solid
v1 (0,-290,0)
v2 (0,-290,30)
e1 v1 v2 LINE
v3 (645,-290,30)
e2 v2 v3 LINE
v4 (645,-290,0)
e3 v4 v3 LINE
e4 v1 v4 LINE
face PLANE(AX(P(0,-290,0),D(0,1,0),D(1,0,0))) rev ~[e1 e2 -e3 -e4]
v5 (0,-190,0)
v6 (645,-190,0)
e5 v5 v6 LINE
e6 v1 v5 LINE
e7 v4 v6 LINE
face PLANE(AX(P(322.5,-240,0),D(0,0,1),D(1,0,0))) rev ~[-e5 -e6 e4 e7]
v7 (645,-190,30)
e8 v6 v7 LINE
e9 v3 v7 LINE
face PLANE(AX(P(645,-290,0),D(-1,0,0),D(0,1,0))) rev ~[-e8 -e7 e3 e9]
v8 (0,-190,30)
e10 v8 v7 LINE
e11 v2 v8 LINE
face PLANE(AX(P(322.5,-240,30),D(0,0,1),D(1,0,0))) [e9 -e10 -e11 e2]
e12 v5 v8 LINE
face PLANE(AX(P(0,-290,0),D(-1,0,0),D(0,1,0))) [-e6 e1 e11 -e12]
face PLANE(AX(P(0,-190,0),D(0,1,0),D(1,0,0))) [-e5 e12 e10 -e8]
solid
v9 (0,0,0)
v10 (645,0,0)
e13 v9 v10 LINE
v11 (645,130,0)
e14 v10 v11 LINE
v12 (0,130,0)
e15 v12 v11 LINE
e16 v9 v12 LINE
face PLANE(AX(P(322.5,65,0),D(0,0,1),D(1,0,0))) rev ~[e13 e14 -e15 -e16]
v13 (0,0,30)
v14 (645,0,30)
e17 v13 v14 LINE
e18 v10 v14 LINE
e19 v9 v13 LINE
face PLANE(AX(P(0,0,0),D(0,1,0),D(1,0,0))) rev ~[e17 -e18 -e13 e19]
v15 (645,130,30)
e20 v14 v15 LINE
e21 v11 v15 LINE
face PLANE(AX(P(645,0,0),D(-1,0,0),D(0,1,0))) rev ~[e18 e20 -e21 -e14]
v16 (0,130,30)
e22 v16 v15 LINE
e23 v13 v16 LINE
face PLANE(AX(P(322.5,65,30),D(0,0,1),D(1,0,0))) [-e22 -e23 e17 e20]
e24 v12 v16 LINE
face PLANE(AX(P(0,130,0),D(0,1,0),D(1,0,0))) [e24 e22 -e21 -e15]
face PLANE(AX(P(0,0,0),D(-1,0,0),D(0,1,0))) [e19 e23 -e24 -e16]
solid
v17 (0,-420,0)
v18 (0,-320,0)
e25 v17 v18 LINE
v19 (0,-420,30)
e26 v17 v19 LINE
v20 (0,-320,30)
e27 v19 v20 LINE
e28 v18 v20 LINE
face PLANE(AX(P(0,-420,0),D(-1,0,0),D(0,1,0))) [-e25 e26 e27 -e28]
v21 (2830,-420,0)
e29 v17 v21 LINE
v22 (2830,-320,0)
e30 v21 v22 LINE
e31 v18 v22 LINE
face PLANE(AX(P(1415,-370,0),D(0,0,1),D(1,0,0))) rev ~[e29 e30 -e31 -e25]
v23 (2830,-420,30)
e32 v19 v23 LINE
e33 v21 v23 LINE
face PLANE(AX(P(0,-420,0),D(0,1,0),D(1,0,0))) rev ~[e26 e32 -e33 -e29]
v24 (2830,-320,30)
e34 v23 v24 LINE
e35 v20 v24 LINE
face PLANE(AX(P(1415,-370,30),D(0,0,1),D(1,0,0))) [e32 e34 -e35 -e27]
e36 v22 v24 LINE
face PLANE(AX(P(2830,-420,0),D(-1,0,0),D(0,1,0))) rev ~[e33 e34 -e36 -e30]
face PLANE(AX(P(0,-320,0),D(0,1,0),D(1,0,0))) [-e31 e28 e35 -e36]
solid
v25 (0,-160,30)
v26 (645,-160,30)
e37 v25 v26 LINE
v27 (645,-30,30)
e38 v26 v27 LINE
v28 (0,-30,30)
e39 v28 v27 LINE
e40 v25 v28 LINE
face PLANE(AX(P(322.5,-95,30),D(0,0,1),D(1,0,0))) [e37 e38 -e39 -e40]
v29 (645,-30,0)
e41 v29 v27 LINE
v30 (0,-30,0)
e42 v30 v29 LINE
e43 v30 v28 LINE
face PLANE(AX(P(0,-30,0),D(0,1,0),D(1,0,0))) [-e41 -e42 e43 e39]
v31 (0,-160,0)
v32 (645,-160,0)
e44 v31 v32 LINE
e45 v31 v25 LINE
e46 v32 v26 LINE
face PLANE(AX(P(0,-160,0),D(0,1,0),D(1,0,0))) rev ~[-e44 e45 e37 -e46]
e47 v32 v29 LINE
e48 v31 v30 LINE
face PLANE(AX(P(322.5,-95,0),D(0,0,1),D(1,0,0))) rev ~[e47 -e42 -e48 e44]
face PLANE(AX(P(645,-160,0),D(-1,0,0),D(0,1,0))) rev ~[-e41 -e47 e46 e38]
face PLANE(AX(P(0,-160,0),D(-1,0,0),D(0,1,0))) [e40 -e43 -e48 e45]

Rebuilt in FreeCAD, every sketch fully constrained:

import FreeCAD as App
import Part
import Sketcher
Q = App.Units.Quantity


def add_polygon(sketch, points):
    """Adds a closed chain of lines whose ends are joined by coincident constraints."""
    first, n = sketch.GeometryCount, len(points)
    for a, b in zip(points, points[1:] + points[:1]):
        sketch.addGeometry(Part.LineSegment(App.Vector(*a, 0), App.Vector(*b, 0)), False)
    for i in range(n):
        sketch.addConstraint(Sketcher.Constraint("Coincident", first + i, 2, first + (i + 1) % n, 1))

doc = App.newDocument("Part")
body = doc.addObject("PartDesign::Body", "Body")
body.AllowCompound = True

# Sketch on XY plane
sketch1 = body.newObject("Sketcher::SketchObject", "Sketch")
sketch1.AttachmentSupport = (doc.getObject("XY_Plane"), [""])
sketch1.MapMode = "FlatFace"
add_polygon(sketch1, [(0, 130), (0, 0), (645, 0), (645, 130)])  # lines 0-3
add_polygon(sketch1, [(0, -30), (0, -160), (645, -160), (645, -30)])  # lines 4-7
add_polygon(sketch1, [(0, -190), (0, -290), (645, -290), (645, -190)])  # lines 8-11
add_polygon(sketch1, [(0, -320), (0, -420), (2830, -420), (2830, -320)])  # lines 12-15
sketch1.addConstraint(Sketcher.Constraint("Vertical", 0))
sketch1.addConstraint(Sketcher.Constraint("Horizontal", 1))
sketch1.addConstraint(Sketcher.Constraint("Vertical", 2))
sketch1.addConstraint(Sketcher.Constraint("Horizontal", 3))
sketch1.addConstraint(Sketcher.Constraint("Vertical", 4))
sketch1.addConstraint(Sketcher.Constraint("Horizontal", 5))
sketch1.addConstraint(Sketcher.Constraint("Vertical", 6))
sketch1.addConstraint(Sketcher.Constraint("Horizontal", 7))
sketch1.addConstraint(Sketcher.Constraint("Vertical", 8))
sketch1.addConstraint(Sketcher.Constraint("Horizontal", 9))
sketch1.addConstraint(Sketcher.Constraint("Vertical", 10))
sketch1.addConstraint(Sketcher.Constraint("Horizontal", 11))
sketch1.addConstraint(Sketcher.Constraint("Vertical", 12))
sketch1.addConstraint(Sketcher.Constraint("Horizontal", 13))
sketch1.addConstraint(Sketcher.Constraint("Vertical", 14))
sketch1.addConstraint(Sketcher.Constraint("Horizontal", 15))
sketch1.addConstraint(Sketcher.Constraint("Coincident", 0, 2, -1, 1))
sketch1.addConstraint(Sketcher.Constraint("PointOnObject", 4, 2, -2))
sketch1.addConstraint(Sketcher.Constraint("PointOnObject", 8, 2, -2))
sketch1.addConstraint(Sketcher.Constraint("PointOnObject", 12, 2, -2))
sketch1.addConstraint(Sketcher.Constraint("Vertical", 2, 2, 5, 2))
sketch1.addConstraint(Sketcher.Constraint("Vertical", 6, 2, 9, 2))
sketch1.addConstraint(Sketcher.Constraint("Equal", 2, 4))
sketch1.addConstraint(Sketcher.Constraint("Equal", 10, 12))
sketch1.addConstraint(Sketcher.Constraint("DistanceX", 1, 1, 1, 2, Q("645 mm")))
sketch1.addConstraint(Sketcher.Constraint("DistanceX", 13, 1, 13, 2, Q("2830 mm")))
sketch1.addConstraint(Sketcher.Constraint("DistanceY", 0, 2, 0, 1, Q("130 mm")))
sketch1.addConstraint(Sketcher.Constraint("DistanceY", 8, 2, 8, 1, Q("100 mm")))
sketch1.addConstraint(Sketcher.Constraint("DistanceY", 4, 2, -1, 1, Q("160 mm")))
sketch1.addConstraint(Sketcher.Constraint("DistanceY", 8, 2, -1, 1, Q("290 mm")))
sketch1.addConstraint(Sketcher.Constraint("DistanceY", 12, 2, -1, 1, Q("420 mm")))
pad1 = body.newObject("PartDesign::Pad", "Pad")
pad1.Profile = sketch1
pad1.Length = 30

doc.recompute()
